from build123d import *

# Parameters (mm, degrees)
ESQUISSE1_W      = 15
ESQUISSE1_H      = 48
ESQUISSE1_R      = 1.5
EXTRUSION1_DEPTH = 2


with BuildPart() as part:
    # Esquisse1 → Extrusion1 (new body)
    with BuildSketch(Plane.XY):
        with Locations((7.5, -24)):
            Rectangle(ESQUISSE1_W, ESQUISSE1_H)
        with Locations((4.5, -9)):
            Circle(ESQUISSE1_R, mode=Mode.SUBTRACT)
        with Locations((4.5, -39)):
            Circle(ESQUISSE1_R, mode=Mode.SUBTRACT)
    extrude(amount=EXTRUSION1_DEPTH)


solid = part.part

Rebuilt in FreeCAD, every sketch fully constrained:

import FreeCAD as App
import Part
import Sketcher
from FreeCAD import Vector
Q = App.Units.Quantity

doc = App.newDocument("Part")
body = doc.addObject("PartDesign::Body", "Body")

# Sketch on XY plane
sketch1 = body.newObject("Sketcher::SketchObject", "Sketch")
sketch1.AttachmentSupport = (doc.getObject("XY_Plane"), [""])
sketch1.MapMode = "FlatFace"
sketch1.addGeometry(Part.LineSegment(Vector(0, 0, 0), Vector(0, -48, 0)), False)
sketch1.addGeometry(Part.LineSegment(Vector(0, -48, 0), Vector(15, -48, 0)), False)
sketch1.addGeometry(Part.LineSegment(Vector(15, -48, 0), Vector(15, 0, 0)), False)
sketch1.addGeometry(Part.LineSegment(Vector(15, 0, 0), Vector(0, 0, 0)), False)
sketch1.addGeometry(Part.Circle(Vector(4.5, -39, 0), Vector(0, 0, 1), 1.5), False)
sketch1.addGeometry(Part.Circle(Vector(4.5, -9, 0), Vector(0, 0, 1), 1.5), False)
sketch1.addConstraint(Sketcher.Constraint("Coincident", 0, 2, 1, 1))
sketch1.addConstraint(Sketcher.Constraint("Coincident", 1, 2, 2, 1))
sketch1.addConstraint(Sketcher.Constraint("Coincident", 2, 2, 3, 1))
sketch1.addConstraint(Sketcher.Constraint("Coincident", 3, 2, 0, 1))
sketch1.addConstraint(Sketcher.Constraint("Vertical", 0))
sketch1.addConstraint(Sketcher.Constraint("Horizontal", 1))
sketch1.addConstraint(Sketcher.Constraint("Vertical", 2))
sketch1.addConstraint(Sketcher.Constraint("Horizontal", 3))
sketch1.addConstraint(Sketcher.Constraint("Coincident", 3, 2, -1, 1))
sketch1.addConstraint(Sketcher.Constraint("Equal", 4, 5))
sketch1.addConstraint(Sketcher.Constraint("Vertical", 4, 3, 5, 3))
sketch1.addConstraint(Sketcher.Constraint("Diameter", 4, Q("3 mm")))
sketch1.addConstraint(Sketcher.Constraint("DistanceX", 1, 1, 1, 2, Q("15 mm")))
sketch1.addConstraint(Sketcher.Constraint("DistanceY", 0, 2, 0, 1, Q("48 mm")))
sketch1.addConstraint(Sketcher.Constraint("DistanceY", 4, 3, -1, 1, Q("39 mm")))
sketch1.addConstraint(Sketcher.Constraint("DistanceY", 5, 3, -1, 1, Q("9 mm")))
sketch1.addConstraint(Sketcher.Constraint("DistanceX", -1, 1, 4, 3, Q("4.5 mm")))
pad1 = body.newObject("PartDesign::Pad", "Pad")
pad1.Profile = sketch1
pad1.Length = 2

doc.recompute()
